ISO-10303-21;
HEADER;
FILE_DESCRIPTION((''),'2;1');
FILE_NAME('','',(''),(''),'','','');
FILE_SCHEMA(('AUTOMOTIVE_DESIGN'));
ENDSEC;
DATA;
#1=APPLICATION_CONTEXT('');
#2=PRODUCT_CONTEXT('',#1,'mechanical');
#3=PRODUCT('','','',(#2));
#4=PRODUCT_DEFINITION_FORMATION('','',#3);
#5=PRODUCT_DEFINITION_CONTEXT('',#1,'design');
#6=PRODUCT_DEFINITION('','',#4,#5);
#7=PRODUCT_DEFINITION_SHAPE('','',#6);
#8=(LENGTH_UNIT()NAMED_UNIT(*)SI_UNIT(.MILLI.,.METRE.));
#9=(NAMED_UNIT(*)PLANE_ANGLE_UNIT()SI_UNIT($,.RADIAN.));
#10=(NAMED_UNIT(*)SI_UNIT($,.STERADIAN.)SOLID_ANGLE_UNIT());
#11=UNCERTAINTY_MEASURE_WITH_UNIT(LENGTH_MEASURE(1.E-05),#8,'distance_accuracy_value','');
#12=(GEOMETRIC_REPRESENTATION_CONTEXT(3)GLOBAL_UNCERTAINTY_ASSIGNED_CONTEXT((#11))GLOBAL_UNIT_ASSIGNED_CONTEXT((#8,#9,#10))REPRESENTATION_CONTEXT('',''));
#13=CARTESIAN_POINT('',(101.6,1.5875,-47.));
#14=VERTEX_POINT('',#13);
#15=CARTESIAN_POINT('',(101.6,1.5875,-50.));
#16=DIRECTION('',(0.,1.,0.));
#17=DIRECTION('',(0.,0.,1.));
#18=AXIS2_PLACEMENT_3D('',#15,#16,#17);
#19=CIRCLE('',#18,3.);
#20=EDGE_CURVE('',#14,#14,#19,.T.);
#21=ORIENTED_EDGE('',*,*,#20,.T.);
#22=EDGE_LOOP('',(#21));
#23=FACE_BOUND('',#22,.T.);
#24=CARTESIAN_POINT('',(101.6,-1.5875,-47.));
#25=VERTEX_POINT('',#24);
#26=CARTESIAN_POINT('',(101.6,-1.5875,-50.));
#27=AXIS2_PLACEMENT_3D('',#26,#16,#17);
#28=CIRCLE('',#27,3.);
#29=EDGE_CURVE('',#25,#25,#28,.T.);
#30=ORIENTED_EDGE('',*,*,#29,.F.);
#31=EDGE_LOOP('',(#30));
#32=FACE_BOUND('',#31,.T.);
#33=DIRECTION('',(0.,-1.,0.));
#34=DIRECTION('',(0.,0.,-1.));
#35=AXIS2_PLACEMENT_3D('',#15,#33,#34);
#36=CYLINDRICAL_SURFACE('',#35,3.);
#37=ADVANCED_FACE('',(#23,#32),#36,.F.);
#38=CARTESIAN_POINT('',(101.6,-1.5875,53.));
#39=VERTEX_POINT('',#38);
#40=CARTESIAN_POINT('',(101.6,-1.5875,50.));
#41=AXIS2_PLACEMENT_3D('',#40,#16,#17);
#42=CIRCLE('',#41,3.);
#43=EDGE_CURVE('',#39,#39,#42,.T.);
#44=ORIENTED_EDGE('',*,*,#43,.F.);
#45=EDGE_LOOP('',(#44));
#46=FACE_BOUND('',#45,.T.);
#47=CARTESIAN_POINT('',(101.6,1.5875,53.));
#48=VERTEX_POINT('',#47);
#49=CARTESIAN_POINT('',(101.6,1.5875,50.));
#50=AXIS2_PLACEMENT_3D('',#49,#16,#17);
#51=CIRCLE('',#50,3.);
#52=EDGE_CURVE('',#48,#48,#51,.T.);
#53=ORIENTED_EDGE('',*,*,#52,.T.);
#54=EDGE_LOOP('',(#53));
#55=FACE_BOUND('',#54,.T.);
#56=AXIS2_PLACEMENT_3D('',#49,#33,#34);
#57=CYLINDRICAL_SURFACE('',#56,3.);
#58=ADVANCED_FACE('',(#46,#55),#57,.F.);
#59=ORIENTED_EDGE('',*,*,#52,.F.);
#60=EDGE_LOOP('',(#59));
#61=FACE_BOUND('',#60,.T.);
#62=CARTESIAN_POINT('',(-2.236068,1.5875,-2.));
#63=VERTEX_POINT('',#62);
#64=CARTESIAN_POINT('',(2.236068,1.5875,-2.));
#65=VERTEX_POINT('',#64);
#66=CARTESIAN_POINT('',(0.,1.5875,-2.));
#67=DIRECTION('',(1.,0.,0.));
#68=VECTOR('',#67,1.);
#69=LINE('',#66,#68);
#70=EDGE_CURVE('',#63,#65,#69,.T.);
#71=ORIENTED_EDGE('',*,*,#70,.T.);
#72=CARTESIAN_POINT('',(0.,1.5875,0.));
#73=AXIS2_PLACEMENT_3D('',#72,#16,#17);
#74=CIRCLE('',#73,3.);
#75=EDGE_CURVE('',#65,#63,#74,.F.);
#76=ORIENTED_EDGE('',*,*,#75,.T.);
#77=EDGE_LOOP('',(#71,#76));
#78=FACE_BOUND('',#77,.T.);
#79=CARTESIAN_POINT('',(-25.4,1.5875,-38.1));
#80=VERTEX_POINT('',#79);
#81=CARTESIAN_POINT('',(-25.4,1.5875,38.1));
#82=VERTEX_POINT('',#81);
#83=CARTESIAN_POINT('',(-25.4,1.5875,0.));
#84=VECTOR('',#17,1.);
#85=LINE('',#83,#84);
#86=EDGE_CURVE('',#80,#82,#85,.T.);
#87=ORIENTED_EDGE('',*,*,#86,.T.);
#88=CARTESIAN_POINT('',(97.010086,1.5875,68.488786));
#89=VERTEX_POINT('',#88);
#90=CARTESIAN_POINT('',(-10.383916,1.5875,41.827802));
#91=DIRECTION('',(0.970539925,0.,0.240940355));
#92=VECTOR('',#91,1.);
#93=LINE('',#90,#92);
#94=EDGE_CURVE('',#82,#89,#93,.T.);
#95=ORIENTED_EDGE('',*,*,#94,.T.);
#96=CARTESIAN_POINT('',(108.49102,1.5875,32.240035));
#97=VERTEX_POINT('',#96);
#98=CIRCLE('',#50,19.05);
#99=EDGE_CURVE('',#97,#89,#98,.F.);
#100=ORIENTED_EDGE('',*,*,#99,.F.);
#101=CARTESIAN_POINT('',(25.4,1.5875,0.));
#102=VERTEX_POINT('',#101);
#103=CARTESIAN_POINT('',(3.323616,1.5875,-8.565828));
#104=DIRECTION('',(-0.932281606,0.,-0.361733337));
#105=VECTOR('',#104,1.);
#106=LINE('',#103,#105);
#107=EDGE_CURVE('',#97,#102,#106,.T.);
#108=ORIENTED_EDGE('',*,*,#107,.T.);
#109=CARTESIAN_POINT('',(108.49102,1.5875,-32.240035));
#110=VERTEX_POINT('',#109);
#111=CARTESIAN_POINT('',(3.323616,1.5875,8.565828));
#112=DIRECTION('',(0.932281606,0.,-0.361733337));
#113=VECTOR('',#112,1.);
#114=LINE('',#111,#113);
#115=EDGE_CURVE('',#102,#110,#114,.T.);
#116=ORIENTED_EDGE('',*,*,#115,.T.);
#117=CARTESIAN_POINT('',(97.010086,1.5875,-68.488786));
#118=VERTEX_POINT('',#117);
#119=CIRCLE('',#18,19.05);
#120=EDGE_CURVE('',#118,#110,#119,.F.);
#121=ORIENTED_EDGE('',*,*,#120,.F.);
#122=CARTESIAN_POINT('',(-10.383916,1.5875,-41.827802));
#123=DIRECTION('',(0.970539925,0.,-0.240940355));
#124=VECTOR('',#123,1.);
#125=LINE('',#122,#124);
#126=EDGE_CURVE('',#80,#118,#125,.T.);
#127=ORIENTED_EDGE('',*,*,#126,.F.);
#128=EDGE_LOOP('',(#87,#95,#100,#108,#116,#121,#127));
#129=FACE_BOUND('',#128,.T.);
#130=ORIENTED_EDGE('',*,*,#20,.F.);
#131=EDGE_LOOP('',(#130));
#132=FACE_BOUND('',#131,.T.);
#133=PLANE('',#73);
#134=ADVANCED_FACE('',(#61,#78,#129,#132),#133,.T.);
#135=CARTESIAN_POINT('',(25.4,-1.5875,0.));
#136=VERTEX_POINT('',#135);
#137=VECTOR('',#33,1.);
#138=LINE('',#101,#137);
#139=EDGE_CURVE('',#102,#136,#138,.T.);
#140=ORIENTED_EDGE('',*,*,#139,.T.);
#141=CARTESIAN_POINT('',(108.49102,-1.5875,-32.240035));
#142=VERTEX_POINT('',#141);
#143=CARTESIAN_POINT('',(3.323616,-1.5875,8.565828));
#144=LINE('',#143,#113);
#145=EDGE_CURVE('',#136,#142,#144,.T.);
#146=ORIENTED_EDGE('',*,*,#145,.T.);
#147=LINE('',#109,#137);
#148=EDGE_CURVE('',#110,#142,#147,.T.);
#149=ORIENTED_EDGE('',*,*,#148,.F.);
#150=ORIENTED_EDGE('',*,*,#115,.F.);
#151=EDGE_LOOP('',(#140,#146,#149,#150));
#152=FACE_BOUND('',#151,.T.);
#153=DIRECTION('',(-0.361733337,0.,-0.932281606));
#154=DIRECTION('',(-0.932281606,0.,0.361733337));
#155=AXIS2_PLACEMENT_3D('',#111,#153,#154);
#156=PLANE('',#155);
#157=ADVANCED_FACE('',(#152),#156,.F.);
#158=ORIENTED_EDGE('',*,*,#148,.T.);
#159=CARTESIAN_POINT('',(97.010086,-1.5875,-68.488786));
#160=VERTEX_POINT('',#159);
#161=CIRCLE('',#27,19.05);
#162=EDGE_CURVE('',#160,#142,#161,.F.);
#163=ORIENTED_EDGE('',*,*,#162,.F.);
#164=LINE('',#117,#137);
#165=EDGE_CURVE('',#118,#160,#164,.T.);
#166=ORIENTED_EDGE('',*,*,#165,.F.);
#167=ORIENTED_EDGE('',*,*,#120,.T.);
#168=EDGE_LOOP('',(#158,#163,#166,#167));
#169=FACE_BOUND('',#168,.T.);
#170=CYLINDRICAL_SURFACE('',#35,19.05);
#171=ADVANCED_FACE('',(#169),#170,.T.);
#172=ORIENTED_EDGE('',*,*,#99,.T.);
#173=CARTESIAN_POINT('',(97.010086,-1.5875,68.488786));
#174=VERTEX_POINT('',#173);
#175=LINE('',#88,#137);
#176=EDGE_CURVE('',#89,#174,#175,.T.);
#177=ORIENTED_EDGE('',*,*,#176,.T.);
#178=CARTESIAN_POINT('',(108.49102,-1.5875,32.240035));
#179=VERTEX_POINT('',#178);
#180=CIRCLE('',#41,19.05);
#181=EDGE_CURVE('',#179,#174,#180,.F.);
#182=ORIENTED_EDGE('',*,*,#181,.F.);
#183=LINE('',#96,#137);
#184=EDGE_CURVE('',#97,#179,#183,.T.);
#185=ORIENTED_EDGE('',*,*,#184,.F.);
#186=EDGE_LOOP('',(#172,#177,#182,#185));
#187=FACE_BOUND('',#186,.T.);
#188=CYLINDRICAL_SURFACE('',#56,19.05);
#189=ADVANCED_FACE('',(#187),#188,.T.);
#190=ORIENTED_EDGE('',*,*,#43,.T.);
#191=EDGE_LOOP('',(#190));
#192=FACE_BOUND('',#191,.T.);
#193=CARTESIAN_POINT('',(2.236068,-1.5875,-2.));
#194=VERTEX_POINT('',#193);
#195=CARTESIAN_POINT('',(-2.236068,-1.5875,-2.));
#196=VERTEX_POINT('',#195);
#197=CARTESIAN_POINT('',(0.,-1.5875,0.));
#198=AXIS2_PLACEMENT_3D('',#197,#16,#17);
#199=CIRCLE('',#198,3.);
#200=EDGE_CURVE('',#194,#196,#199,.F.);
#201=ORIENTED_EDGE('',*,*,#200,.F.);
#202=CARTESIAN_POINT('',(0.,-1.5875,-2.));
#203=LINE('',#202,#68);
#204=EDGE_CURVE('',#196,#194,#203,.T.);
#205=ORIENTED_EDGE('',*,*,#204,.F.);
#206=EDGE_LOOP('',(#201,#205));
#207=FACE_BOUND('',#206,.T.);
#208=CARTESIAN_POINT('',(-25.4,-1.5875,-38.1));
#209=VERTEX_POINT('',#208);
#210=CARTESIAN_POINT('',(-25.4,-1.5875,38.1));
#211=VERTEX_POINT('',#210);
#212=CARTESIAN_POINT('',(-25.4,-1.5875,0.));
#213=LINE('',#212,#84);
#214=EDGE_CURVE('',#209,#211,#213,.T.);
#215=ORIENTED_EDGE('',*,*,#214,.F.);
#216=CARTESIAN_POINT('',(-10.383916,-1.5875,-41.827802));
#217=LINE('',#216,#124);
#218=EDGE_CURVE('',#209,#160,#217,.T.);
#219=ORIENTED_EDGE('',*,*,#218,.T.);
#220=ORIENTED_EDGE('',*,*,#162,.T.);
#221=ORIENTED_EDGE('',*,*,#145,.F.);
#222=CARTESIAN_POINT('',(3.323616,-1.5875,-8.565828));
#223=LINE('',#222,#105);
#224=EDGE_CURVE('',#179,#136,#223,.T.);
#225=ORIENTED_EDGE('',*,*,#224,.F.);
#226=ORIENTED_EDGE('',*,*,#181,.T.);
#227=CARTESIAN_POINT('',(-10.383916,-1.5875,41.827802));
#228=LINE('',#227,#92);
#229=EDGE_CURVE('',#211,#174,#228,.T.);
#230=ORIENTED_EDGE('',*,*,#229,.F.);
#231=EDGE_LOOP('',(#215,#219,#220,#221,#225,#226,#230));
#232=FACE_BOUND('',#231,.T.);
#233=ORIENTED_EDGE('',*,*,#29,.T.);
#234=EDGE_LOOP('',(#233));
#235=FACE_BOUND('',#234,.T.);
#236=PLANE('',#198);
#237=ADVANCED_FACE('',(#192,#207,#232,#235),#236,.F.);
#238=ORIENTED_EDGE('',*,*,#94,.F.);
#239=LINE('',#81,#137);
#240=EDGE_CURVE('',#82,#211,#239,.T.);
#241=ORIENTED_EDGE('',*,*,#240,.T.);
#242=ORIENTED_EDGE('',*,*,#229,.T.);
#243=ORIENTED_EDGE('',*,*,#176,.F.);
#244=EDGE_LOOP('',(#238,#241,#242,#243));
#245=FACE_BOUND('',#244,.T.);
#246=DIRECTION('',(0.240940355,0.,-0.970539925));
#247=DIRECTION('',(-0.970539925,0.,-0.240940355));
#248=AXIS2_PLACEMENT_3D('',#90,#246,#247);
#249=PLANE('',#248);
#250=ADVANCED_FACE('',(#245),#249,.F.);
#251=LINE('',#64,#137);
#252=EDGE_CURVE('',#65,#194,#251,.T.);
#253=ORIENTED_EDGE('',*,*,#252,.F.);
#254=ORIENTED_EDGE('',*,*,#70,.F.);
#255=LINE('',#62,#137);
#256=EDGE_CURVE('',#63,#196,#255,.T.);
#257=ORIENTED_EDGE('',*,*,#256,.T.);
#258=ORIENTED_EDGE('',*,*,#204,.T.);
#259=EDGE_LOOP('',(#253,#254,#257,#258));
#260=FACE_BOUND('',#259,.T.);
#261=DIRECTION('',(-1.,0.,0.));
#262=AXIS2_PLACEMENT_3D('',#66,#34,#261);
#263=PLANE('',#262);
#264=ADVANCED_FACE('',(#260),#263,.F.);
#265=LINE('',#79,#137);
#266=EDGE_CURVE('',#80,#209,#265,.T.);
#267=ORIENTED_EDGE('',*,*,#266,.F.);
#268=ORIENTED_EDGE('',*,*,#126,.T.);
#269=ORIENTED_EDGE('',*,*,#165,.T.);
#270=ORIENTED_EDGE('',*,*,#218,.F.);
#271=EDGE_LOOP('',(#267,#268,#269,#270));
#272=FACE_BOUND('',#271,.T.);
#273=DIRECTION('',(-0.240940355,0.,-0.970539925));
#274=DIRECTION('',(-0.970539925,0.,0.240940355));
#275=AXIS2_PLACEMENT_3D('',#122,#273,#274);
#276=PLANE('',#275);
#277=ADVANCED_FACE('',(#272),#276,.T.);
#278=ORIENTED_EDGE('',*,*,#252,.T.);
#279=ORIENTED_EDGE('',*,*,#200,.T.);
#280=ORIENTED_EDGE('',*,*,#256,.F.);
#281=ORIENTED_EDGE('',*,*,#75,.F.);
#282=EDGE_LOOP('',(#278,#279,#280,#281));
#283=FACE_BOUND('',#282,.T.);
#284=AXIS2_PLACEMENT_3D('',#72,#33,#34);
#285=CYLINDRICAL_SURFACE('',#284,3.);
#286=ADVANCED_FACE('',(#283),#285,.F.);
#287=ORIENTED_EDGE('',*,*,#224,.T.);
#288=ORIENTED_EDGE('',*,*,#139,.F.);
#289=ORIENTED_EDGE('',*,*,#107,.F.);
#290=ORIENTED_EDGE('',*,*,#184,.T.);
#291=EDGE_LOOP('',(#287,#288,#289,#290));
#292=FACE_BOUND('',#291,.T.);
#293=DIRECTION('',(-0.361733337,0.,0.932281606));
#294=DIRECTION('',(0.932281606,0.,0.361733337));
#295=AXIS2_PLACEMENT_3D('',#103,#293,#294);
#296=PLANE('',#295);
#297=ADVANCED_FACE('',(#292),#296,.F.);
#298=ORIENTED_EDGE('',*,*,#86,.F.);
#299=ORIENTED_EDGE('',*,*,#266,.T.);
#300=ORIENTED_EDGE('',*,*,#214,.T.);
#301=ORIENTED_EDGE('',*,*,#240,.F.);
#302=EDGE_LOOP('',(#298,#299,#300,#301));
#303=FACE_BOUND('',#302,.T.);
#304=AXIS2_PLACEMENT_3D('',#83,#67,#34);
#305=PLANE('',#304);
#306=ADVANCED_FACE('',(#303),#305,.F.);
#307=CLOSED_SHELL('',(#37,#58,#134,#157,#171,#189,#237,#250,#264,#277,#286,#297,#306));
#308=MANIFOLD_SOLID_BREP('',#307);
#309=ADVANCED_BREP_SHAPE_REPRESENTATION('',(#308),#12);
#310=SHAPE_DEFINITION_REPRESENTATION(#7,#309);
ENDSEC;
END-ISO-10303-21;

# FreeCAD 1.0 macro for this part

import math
import FreeCAD as App
import Part
import Sketcher
Q = App.Units.Quantity

doc = App.newDocument("Part")
body = doc.addObject("PartDesign::Body", "Body")

sketch1 = body.newObject("Sketcher::SketchObject", "Sketch")
sketch1.AttachmentSupport = (doc.getObject("XZ_Plane"), [""])
sketch1.MapMode = "FlatFace"
sketch1.addGeometry([
    Part.LineSegment(App.Vector(97, -68.5, 0), App.Vector(-25.4, -38.1, 0)),
    Part.LineSegment(App.Vector(-25.4, -38.1, 0), App.Vector(-25.4, 38.1, 0)),
    Part.LineSegment(App.Vector(-25.4, 38.1, 0), App.Vector(97, 68.5, 0)),
    Part.ArcOfCircle(Part.Circle(App.Vector(101.6, 50, 0), App.Vector(0, 0, 1), 19.1), math.radians(-69), math.radians(104)),
    Part.LineSegment(App.Vector(108.5, 32.2, 0), App.Vector(25.4, 0, 0)),
    Part.LineSegment(App.Vector(25.4, 0, 0), App.Vector(108.5, -32.2, 0)),
    Part.ArcOfCircle(Part.Circle(App.Vector(101.6, -50, 0), App.Vector(0, 0, 1), 19.1), math.radians(-104), math.radians(69)),
    Part.Circle(App.Vector(101.6, 50, 0), App.Vector(0, 0, 1), 3),
    Part.LineSegment(App.Vector(-2.2, -2, 0), App.Vector(2.2, -2, 0)),
    Part.ArcOfCircle(Part.Circle(App.Vector(0, 0, 0), App.Vector(0, 0, 1), 3), math.radians(-42), math.radians(222)),
    Part.Circle(App.Vector(101.6, -50, 0), App.Vector(0, 0, 1), 3),
], False)
sketch1.addConstraint([
    Sketcher.Constraint("Coincident", 0, 2, 1, 1),
    Sketcher.Constraint("Coincident", 1, 2, 2, 1),
    Sketcher.Constraint("Tangent", 2, 2, 3, 2),
    Sketcher.Constraint("Tangent", 3, 1, 4, 1),
    Sketcher.Constraint("Coincident", 4, 2, 5, 1),
    Sketcher.Constraint("Tangent", 5, 2, 6, 2),
    Sketcher.Constraint("Tangent", 6, 1, 0, 1),
    Sketcher.Constraint("Coincident", 8, 1, 9, 2),
    Sketcher.Constraint("Coincident", 9, 1, 8, 2),
    Sketcher.Constraint("Vertical", 1),
    Sketcher.Constraint("Horizontal", 8),
    Sketcher.Constraint("Coincident", 9, 3, -1, 1),
    Sketcher.Constraint("Coincident", 7, 3, 3, 3),
    Sketcher.Constraint("Coincident", 10, 3, 6, 3),
    Sketcher.Constraint("Equal", 3, 6),
    Sketcher.Constraint("Equal", 7, 9),
    Sketcher.Constraint("Equal", 9, 10),
    Sketcher.Constraint("Symmetric", 3, 3, 6, 3, -1),
    Sketcher.Constraint("PointOnObject", 4, 2, -1),
    Sketcher.Constraint("Vertical", 2, 2, 6, 1),
    Sketcher.Constraint("DistanceY", 1, 1, 1, 2, Q("3 in")),
    Sketcher.Constraint("Radius", 3, Q("0.75 in")),
    Sketcher.Constraint("DistanceX", -1, 1, 3, 3, Q("4 in")),
    Sketcher.Constraint("DistanceX", 0, 2, -1, 1, Q("1 in")),
    Sketcher.Constraint("DistanceX", -1, 1, 4, 2, Q("1 in")),
    Sketcher.Constraint("Diameter", 7, Q("6 mm")),
    Sketcher.Constraint("DistanceX", -1, 1, 3, 1, Q("4.2713 in")),
    Sketcher.Constraint("DistanceY", 8, 1, -1, 1, Q("2 mm")),
])
pad1 = body.newObject("PartDesign::Pad", "Pad")
pad1.Profile = sketch1
pad1.Length = Q("0.125 in")
pad1.Midplane = True

doc.recompute()
